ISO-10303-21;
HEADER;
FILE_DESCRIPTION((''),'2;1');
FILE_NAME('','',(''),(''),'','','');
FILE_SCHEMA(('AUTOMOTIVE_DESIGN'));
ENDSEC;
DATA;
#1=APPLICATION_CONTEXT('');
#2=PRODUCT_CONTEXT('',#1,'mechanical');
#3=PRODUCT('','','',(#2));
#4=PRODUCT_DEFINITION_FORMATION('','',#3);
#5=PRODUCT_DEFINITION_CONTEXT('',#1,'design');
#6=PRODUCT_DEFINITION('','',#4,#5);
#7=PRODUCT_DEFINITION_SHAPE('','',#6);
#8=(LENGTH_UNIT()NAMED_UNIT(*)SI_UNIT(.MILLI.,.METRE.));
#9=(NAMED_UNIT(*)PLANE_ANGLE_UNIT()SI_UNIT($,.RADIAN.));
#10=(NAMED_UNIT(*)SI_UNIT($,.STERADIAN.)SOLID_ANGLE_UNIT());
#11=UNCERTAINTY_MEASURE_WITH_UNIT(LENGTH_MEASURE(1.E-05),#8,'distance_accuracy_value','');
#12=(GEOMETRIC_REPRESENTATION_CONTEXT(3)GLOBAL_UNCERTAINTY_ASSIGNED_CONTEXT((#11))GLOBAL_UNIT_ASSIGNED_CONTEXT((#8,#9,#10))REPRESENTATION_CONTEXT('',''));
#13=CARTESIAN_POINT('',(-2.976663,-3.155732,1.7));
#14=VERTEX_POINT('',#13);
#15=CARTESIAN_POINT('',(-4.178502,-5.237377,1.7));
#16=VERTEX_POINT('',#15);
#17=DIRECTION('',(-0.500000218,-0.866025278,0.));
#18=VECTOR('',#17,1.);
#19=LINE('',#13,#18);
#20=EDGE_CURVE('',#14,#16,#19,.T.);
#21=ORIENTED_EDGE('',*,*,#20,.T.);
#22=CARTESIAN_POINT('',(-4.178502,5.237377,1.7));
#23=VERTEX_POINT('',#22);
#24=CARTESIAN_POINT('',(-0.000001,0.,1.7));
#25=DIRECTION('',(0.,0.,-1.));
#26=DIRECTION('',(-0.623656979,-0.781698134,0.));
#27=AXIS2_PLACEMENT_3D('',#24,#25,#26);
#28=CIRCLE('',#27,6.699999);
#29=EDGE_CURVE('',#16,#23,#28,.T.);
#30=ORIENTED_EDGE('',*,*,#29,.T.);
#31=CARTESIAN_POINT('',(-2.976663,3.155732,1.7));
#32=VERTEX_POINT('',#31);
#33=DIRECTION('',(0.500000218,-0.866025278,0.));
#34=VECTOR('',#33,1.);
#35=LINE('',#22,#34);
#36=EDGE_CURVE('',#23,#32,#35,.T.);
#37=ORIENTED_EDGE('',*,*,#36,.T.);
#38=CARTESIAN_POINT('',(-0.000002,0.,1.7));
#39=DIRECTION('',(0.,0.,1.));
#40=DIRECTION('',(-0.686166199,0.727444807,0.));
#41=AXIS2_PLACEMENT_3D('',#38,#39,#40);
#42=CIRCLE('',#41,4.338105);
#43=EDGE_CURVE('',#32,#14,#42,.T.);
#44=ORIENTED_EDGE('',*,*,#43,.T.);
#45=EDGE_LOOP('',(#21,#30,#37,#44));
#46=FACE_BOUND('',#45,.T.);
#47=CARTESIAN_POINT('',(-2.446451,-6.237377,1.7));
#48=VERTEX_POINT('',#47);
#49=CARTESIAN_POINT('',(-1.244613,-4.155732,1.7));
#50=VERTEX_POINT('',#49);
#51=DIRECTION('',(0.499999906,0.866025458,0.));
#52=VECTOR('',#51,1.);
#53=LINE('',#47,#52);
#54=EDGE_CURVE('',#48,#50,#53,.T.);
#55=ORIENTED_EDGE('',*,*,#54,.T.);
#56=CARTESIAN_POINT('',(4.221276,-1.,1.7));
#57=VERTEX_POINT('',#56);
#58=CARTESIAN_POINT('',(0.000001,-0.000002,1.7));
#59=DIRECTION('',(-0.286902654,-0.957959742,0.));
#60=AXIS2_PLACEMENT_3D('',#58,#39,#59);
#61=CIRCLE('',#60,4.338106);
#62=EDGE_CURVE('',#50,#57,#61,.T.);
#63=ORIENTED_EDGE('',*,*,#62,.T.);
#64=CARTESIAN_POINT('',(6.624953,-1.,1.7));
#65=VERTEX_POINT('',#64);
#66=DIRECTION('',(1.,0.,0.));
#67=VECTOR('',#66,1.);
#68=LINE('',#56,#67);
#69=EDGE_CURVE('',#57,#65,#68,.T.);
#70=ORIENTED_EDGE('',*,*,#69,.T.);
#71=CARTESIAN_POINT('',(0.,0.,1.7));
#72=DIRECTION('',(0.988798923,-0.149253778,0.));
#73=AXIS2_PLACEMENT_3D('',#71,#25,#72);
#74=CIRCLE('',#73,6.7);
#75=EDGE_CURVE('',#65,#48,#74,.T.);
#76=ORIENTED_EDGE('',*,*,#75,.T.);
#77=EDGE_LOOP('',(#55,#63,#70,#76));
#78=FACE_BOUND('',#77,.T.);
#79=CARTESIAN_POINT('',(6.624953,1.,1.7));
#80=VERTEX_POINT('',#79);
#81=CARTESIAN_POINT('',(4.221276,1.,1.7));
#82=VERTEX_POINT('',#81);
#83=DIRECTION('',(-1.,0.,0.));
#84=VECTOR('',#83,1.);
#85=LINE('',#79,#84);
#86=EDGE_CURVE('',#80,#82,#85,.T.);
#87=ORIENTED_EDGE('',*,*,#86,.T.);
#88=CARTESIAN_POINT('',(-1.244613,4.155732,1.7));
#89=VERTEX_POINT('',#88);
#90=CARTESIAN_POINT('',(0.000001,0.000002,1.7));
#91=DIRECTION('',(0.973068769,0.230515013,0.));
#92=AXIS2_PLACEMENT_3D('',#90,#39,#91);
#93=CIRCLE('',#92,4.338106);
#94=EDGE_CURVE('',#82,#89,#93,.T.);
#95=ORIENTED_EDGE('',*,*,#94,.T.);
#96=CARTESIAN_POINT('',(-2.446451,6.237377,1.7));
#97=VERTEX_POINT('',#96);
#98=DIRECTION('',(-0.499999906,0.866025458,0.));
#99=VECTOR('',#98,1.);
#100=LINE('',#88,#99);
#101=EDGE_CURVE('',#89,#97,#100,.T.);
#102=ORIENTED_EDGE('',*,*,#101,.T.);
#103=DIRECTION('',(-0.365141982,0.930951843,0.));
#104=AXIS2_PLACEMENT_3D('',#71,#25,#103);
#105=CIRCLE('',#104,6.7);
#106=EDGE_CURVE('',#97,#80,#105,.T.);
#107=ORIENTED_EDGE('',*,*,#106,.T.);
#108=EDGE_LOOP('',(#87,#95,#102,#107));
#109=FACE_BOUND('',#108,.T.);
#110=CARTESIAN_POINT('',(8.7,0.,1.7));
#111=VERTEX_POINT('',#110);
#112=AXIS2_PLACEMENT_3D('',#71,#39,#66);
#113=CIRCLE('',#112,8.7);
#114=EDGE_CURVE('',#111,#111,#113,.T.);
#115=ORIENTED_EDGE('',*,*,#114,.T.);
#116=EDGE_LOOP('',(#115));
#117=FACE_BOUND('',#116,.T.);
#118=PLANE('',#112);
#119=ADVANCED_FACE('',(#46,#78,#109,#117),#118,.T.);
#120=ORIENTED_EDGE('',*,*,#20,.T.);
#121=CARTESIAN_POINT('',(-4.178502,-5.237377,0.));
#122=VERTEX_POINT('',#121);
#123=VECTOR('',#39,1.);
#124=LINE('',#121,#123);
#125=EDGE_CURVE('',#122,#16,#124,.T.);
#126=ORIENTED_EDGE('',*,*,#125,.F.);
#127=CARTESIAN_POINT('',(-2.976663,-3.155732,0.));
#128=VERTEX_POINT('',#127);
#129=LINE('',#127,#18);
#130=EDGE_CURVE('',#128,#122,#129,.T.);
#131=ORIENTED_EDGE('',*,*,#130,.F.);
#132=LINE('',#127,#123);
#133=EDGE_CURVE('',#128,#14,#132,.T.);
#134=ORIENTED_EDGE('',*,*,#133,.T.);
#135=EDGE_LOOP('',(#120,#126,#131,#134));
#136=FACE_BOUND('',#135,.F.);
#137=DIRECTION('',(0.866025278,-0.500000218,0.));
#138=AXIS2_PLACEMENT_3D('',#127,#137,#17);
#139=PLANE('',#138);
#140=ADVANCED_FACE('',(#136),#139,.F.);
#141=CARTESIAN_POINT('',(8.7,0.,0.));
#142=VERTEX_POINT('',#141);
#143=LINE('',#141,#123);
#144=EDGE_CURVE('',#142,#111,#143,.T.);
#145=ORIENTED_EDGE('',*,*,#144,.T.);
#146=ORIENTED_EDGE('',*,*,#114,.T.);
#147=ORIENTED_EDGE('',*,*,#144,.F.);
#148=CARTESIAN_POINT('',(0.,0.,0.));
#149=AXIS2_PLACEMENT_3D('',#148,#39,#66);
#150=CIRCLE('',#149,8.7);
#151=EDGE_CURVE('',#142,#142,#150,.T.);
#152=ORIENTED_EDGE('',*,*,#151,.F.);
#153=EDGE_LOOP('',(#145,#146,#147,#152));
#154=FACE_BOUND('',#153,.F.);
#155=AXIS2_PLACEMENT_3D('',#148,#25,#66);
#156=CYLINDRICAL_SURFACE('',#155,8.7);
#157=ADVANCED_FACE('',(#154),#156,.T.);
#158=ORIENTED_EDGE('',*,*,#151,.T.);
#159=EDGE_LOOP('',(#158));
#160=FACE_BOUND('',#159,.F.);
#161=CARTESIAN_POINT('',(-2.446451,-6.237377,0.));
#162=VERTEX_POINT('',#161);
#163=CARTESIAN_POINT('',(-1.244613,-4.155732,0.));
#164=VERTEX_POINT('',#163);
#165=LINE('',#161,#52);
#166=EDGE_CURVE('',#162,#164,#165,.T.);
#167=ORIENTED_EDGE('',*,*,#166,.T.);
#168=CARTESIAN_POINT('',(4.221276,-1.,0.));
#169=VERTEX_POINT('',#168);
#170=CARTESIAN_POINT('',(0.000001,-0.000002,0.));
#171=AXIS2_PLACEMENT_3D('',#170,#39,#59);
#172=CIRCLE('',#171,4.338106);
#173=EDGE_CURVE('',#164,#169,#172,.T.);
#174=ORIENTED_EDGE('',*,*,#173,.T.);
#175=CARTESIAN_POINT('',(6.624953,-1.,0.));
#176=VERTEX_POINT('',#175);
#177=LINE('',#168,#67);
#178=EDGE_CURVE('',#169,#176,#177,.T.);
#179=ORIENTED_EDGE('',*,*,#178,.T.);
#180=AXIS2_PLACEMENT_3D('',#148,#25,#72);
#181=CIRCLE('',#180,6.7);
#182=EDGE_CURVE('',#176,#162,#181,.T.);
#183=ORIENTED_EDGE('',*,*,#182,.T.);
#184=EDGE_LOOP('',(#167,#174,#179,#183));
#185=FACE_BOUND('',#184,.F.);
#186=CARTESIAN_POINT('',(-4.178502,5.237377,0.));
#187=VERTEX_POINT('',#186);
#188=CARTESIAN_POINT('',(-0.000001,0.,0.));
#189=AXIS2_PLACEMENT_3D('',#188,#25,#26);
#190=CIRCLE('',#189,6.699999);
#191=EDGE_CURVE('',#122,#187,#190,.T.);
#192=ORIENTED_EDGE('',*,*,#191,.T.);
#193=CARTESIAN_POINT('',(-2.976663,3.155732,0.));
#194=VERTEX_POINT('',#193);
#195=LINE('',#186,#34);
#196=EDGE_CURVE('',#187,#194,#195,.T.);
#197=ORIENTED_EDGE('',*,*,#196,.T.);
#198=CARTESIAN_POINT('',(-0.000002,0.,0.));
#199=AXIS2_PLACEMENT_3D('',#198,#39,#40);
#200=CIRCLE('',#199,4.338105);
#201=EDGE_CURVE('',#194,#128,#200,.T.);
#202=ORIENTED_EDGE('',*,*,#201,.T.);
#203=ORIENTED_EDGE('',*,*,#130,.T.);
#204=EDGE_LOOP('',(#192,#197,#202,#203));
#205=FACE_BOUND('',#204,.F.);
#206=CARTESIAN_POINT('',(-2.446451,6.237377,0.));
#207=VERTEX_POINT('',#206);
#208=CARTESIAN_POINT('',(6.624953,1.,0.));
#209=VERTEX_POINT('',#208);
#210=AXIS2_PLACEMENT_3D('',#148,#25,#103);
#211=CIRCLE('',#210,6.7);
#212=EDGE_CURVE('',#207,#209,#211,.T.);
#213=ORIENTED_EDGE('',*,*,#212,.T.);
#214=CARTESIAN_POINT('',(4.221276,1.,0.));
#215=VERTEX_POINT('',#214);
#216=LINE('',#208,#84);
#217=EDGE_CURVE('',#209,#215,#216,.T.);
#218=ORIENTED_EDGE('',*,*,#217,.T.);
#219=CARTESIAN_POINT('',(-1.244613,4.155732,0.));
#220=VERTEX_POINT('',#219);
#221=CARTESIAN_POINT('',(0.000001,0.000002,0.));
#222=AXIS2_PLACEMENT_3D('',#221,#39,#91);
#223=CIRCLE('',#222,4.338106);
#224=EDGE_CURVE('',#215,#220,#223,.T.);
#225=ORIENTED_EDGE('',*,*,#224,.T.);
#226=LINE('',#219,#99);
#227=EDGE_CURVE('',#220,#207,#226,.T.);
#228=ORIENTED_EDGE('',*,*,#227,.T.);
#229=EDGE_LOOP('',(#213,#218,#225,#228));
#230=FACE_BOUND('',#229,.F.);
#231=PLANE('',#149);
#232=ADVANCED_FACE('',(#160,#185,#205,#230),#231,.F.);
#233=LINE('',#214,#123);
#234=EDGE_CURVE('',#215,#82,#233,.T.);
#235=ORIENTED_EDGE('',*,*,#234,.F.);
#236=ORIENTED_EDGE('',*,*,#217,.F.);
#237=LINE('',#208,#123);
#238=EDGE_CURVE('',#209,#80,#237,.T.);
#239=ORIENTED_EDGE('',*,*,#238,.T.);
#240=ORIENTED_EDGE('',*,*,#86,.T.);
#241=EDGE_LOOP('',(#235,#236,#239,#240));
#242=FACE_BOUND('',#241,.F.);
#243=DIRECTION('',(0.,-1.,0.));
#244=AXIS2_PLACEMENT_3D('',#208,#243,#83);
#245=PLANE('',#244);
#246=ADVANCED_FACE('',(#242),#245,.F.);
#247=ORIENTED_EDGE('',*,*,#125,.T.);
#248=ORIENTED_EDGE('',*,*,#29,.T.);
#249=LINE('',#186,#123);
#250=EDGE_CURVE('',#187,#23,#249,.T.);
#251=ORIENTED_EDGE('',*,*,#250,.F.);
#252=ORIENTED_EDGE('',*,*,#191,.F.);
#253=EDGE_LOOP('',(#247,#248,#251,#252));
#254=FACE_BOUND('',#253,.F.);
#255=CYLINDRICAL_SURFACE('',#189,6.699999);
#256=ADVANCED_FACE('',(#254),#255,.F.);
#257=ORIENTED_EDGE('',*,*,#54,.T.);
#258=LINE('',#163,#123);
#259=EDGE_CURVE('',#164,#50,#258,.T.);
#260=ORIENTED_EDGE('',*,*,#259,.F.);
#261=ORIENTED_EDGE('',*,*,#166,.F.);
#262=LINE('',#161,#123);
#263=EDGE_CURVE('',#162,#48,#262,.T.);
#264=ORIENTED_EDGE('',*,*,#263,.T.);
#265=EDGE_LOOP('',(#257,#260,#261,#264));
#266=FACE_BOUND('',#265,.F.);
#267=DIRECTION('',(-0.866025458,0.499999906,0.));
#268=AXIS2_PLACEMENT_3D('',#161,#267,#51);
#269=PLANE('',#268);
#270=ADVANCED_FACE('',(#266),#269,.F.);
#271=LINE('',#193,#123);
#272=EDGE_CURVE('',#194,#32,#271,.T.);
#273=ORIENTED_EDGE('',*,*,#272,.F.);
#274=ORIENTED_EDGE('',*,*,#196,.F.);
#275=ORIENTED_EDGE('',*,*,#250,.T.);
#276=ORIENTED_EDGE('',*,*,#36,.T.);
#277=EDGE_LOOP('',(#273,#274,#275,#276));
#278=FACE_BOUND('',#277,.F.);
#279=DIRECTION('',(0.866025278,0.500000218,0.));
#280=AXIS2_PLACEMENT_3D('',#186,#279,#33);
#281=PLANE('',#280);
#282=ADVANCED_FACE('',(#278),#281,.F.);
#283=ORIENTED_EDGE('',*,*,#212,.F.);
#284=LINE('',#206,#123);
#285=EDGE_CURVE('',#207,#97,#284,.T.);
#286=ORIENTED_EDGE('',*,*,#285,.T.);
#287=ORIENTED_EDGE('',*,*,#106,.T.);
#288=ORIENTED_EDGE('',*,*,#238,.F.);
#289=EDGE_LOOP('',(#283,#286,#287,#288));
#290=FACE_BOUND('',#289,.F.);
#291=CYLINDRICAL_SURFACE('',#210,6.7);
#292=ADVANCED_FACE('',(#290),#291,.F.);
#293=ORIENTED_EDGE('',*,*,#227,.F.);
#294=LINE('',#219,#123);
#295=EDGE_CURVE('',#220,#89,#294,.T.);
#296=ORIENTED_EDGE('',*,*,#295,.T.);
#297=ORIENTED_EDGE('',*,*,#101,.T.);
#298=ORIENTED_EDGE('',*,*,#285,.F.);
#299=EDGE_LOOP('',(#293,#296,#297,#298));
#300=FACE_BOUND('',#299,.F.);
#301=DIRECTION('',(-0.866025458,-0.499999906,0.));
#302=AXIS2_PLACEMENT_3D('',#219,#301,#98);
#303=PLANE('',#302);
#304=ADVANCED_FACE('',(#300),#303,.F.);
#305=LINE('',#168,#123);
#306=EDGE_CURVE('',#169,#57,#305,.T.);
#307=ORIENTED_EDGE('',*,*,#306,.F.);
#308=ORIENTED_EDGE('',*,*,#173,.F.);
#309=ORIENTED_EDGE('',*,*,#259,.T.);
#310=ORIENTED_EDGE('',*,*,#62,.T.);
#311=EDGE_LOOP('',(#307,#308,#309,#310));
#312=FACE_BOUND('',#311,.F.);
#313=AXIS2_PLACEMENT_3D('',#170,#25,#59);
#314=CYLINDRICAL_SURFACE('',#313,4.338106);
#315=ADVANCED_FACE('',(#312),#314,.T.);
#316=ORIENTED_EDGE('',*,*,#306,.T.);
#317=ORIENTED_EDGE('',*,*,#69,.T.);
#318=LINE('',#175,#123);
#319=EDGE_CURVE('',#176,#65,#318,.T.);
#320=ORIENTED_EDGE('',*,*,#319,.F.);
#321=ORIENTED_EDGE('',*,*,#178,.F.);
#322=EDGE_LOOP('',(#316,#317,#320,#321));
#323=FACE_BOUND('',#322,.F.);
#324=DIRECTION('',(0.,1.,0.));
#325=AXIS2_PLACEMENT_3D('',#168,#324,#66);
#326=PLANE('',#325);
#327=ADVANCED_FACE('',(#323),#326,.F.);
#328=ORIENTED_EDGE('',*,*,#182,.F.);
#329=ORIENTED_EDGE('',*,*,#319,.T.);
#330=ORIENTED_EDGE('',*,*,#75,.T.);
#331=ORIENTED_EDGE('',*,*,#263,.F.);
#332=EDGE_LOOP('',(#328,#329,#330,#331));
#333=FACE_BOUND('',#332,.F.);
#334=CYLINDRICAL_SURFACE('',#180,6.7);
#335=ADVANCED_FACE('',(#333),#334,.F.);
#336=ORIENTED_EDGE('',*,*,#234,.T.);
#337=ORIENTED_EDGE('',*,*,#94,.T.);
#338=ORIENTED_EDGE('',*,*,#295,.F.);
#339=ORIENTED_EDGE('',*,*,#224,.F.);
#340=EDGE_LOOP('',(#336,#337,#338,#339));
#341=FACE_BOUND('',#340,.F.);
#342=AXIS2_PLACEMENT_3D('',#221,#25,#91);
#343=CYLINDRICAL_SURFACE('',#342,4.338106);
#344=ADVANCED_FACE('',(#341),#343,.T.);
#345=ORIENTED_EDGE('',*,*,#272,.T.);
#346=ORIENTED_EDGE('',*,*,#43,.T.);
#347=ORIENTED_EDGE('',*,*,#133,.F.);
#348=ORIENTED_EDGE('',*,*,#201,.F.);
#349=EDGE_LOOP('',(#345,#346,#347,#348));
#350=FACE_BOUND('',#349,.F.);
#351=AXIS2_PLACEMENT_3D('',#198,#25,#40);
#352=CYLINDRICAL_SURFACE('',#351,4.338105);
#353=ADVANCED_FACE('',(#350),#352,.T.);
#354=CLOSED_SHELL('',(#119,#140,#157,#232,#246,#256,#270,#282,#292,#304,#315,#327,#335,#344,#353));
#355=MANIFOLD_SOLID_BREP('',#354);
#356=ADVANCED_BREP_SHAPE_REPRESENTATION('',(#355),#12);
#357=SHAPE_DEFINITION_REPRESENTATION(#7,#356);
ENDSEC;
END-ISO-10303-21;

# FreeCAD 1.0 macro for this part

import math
import FreeCAD as App
import Part
import Sketcher

V = App.Vector
Q = App.Units.Quantity

doc = App.newDocument("Part")
body = doc.addObject("PartDesign::Body", "Body")

# Sketch on XY plane
sketch1 = doc.addObject("Sketcher::SketchObject", "Sketch")
body.addObject(sketch1)
sketch1.AttachmentSupport = (doc.XY_Plane, [""])
sketch1.MapMode = "FlatFace"
sketch1.addGeometry(Part.Circle(V(0, 0, 0), V(0, 0, 1), 8.7), False)
sketch1.addGeometry(Part.LineSegment(V(-2.4, -6.2, 0), V(-1.2, -4.2, 0)), False)
sketch1.addGeometry(Part.ArcOfCircle(Part.Circle(V(0, 0, 0), V(0, 0, 1), 4.3), math.radians(-107), math.radians(-13)), False)
sketch1.addGeometry(Part.LineSegment(V(4.2, -1, 0), V(6.6, -1, 0)), False)
sketch1.addGeometry(Part.ArcOfCircle(Part.Circle(V(0, 0, 0), V(0, 0, 1), 6.7), math.radians(-111), math.radians(-9)), False)
sketch1.addGeometry(Part.ArcOfCircle(Part.Circle(V(0, 0, 0), V(0, 0, 1), 6.7), math.radians(129), math.radians(231)), False)
sketch1.addGeometry(Part.LineSegment(V(-4.2, 5.2, 0), V(-3, 3.2, 0)), False)
sketch1.addGeometry(Part.ArcOfCircle(Part.Circle(V(0, 0, 0), V(0, 0, 1), 4.3), math.radians(133), math.radians(227)), False)
sketch1.addGeometry(Part.LineSegment(V(-3, -3.2, 0), V(-4.2, -5.2, 0)), False)
sketch1.addGeometry(Part.ArcOfCircle(Part.Circle(V(0, 0, 0), V(0, 0, 1), 6.7), math.radians(9), math.radians(111)), False)
sketch1.addGeometry(Part.LineSegment(V(6.6, 1, 0), V(4.2, 1, 0)), False)
sketch1.addGeometry(Part.ArcOfCircle(Part.Circle(V(0, 0, 0), V(0, 0, 1), 4.3), math.radians(13), math.radians(107)), False)
sketch1.addGeometry(Part.LineSegment(V(-1.2, 4.2, 0), V(-2.4, 6.2, 0)), False)
sketch1.addConstraint(Sketcher.Constraint("Coincident", 1, 2, 2, 1))
sketch1.addConstraint(Sketcher.Constraint("Coincident", 2, 2, 3, 1))
sketch1.addConstraint(Sketcher.Constraint("Coincident", 3, 2, 4, 2))
sketch1.addConstraint(Sketcher.Constraint("Coincident", 4, 1, 1, 1))
sketch1.addConstraint(Sketcher.Constraint("Coincident", 5, 1, 6, 1))
sketch1.addConstraint(Sketcher.Constraint("Coincident", 6, 2, 7, 1))
sketch1.addConstraint(Sketcher.Constraint("Coincident", 7, 2, 8, 1))
sketch1.addConstraint(Sketcher.Constraint("Coincident", 8, 2, 5, 2))
sketch1.addConstraint(Sketcher.Constraint("Coincident", 9, 1, 10, 1))
sketch1.addConstraint(Sketcher.Constraint("Coincident", 10, 2, 11, 1))
sketch1.addConstraint(Sketcher.Constraint("Coincident", 11, 2, 12, 1))
sketch1.addConstraint(Sketcher.Constraint("Coincident", 12, 2, 9, 2))
sketch1.addConstraint(Sketcher.Constraint("Horizontal", 3))
sketch1.addConstraint(Sketcher.Constraint("Horizontal", 10))
sketch1.addConstraint(Sketcher.Constraint("Coincident", 0, 3, -1, 1))
sketch1.addConstraint(Sketcher.Constraint("Coincident", 2, 3, -1, 1))
sketch1.addConstraint(Sketcher.Constraint("Coincident", 4, 3, -1, 1))
sketch1.addConstraint(Sketcher.Constraint("Coincident", 5, 3, -1, 1))
sketch1.addConstraint(Sketcher.Constraint("Coincident", 7, 3, -1, 1))
sketch1.addConstraint(Sketcher.Constraint("Coincident", 9, 3, -1, 1))
sketch1.addConstraint(Sketcher.Constraint("Coincident", 11, 3, -1, 1))
sketch1.addConstraint(Sketcher.Constraint("Equal", 4, 5))
sketch1.addConstraint(Sketcher.Constraint("Equal", 2, 7))
sketch1.addConstraint(Sketcher.Constraint("Equal", 5, 9))
sketch1.addConstraint(Sketcher.Constraint("Equal", 7, 11))
sketch1.addConstraint(Sketcher.Constraint("Parallel", 1, 8))
sketch1.addConstraint(Sketcher.Constraint("Parallel", 6, 12))
sketch1.addConstraint(Sketcher.Constraint("Vertical", 6, 2, 7, 2))
sketch1.addConstraint(Sketcher.Constraint("Vertical", 5, 1, 8, 2))
sketch1.addConstraint(Sketcher.Constraint("Vertical", 3, 2, 9, 1))
sketch1.addConstraint(Sketcher.Constraint("Vertical", 1, 2, 11, 2))
sketch1.addConstraint(Sketcher.Constraint("Equal", 1, 6))
sketch1.addConstraint(Sketcher.Constraint("Diameter", 0, 17.4))
sketch1.addConstraint(Sketcher.Constraint("Radius", 4, 6.7))
sketch1.addConstraint(Sketcher.Constraint("Angle", 1, Q("60.000006 deg")))
sketch1.addConstraint(Sketcher.Constraint("DistanceY", 2, 2, -1, 1, 1.0))
sketch1.addConstraint(Sketcher.Constraint("DistanceY", 1, 2, 7, 2, 1.0))
sketch1.addConstraint(Sketcher.Constraint("Radius", 2, 4.338106))
pad1 = doc.addObject("PartDesign::Pad", "Pad")
body.addObject(pad1)
pad1.Profile = sketch1
pad1.Length = 1.7

doc.recompute()
